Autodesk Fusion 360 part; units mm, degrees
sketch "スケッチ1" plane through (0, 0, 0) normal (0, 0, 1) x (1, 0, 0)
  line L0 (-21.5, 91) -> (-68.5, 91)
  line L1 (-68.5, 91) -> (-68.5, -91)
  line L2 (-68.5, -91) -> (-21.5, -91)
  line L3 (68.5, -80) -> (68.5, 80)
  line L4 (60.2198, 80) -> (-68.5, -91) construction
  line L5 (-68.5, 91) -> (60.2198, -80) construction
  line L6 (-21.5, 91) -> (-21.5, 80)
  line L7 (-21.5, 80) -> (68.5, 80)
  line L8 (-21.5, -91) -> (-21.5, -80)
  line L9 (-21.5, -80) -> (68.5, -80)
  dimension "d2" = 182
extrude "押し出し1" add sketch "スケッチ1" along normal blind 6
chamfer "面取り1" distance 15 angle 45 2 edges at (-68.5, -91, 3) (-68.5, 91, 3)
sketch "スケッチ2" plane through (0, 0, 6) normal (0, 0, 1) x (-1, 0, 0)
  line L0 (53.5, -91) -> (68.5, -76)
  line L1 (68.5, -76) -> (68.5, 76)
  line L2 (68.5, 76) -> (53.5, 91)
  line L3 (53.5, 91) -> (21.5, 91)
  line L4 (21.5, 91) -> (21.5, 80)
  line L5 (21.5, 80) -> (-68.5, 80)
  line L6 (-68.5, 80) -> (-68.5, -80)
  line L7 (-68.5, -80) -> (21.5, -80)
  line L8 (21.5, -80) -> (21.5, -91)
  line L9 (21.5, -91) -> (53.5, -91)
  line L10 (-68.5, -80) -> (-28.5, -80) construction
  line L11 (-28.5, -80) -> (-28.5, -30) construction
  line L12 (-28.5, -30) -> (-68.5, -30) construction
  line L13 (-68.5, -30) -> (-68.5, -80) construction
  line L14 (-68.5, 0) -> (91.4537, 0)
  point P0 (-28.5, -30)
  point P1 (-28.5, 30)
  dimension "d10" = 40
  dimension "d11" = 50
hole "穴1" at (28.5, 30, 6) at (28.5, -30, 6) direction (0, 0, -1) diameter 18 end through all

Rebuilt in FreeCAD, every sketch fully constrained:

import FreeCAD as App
import Part
import Sketcher

V = App.Vector


def edges_at(feature, points):
    """Names of the edges that pass closest to the given points."""
    edges = feature.Shape.Edges
    near = lambda p: min(range(len(edges)), key=lambda i: edges[i].distToShape(Part.Vertex(*p))[0])
    return sorted({f"Edge{near(p) + 1}" for p in points})


def add_polygon(sketch, points):
    """Adds a closed chain of lines whose ends are joined by coincident constraints."""
    first, n = sketch.GeometryCount, len(points)
    for a, b in zip(points, points[1:] + points[:1]):
        sketch.addGeometry(Part.LineSegment(App.Vector(*a, 0), App.Vector(*b, 0)), False)
    for i in range(n):
        sketch.addConstraint(Sketcher.Constraint("Coincident", first + i, 2, first + (i + 1) % n, 1))

doc = App.newDocument("Part")
body = doc.addObject("PartDesign::Body", "Body")

sketch1 = body.newObject("Sketcher::SketchObject", "Sketch")
sketch1.AttachmentSupport = (doc.getObject("XY_Plane"), [""])
sketch1.MapMode = "FlatFace"
add_polygon(sketch1, [(-21.5, 80), (-21.5, 91), (-68.5, 91), (-68.5, -91), (-21.5, -91), (-21.5, -80), (68.5, -80), (68.5, 80)])
sketch1.addConstraint(Sketcher.Constraint("Vertical", 0))
sketch1.addConstraint(Sketcher.Constraint("Horizontal", 1))
sketch1.addConstraint(Sketcher.Constraint("Vertical", 2))
sketch1.addConstraint(Sketcher.Constraint("Horizontal", 3))
sketch1.addConstraint(Sketcher.Constraint("Vertical", 4))
sketch1.addConstraint(Sketcher.Constraint("Horizontal", 5))
sketch1.addConstraint(Sketcher.Constraint("Vertical", 6))
sketch1.addConstraint(Sketcher.Constraint("Horizontal", 7))
sketch1.addConstraint(Sketcher.Constraint("Symmetric", 0, 2, 3, 2, -1))
sketch1.addConstraint(Sketcher.Constraint("Equal", 0, 4))
sketch1.addConstraint(Sketcher.Constraint("DistanceY", 2, 2, 2, 1, 182.0))
sketch1.addConstraint(Sketcher.Constraint("DistanceX", 1, 2, 1, 1, 47.0))
sketch1.addConstraint(Sketcher.Constraint("DistanceX", 5, 1, 5, 2, 90.0))
sketch1.addConstraint(Sketcher.Constraint("DistanceY", 0, 1, 0, 2, 11.0))
sketch1.addConstraint(Sketcher.Constraint("DistanceX", 0, 2, -1, 1, 21.5))
pad1 = body.newObject("PartDesign::Pad", "Pad")
pad1.Profile = sketch1
pad1.Length = 6
doc.recompute()

chamfer = body.newObject("PartDesign::Chamfer", "Chamfer")
chamfer.Base = (pad1, edges_at(pad1, [(-68.5, -91, 3), (-68.5, 91, 3)]))
chamfer.Size = 15

sketch2 = body.newObject("Sketcher::SketchObject", "Sketch001")
sketch2.AttachmentSupport = (doc.getObject("XY_Plane"), [""])
sketch2.MapMode = "FlatFace"
sketch2.AttachmentOffset = App.Placement(V(0, 0, 6), App.Rotation())
sketch2.addGeometry(Part.Circle(V(28.5, 30, 0), V(0, 0, 1), 9), False)
sketch2.addGeometry(Part.Circle(V(28.5, -30, 0), V(0, 0, 1), 9), False)
sketch2.addConstraint(Sketcher.Constraint("Equal", 0, 1))
sketch2.addConstraint(Sketcher.Constraint("Symmetric", 0, 3, 1, 3, -1))
sketch2.addConstraint(Sketcher.Constraint("Diameter", 0, 18.0))
sketch2.addConstraint(Sketcher.Constraint("DistanceY", -1, 1, 0, 3, 30.0))
sketch2.addConstraint(Sketcher.Constraint("DistanceX", -1, 1, 0, 3, 28.5))
doc.recompute()
hole = body.newObject("PartDesign::Hole", "Hole")
hole.Profile = sketch2
hole.ThreadType = "None"
hole.Diameter = 18
hole.DepthType = "ThroughAll"

doc.recompute()
